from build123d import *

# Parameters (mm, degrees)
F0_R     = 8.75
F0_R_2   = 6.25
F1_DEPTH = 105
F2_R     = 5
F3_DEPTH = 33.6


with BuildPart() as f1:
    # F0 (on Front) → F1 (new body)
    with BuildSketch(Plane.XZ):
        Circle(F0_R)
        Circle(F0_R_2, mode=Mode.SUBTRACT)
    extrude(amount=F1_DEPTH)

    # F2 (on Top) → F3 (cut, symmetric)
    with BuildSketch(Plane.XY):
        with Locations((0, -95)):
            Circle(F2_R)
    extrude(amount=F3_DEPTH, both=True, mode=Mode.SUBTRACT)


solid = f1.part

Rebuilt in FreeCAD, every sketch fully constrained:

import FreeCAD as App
import Part
import Sketcher

doc = App.newDocument("Part")
body = doc.addObject("PartDesign::Body", "Body")

sketch1 = doc.addObject("Sketcher::SketchObject", "Sketch")
body.addObject(sketch1)
sketch1.AttachmentSupport = (doc.XZ_Plane, [""])
sketch1.MapMode = "FlatFace"
sketch1.addGeometry([
    Part.Circle(App.Vector(0, 0, 0), App.Vector(0, 0, 1), 9),
    Part.Circle(App.Vector(0, 0, 0), App.Vector(0, 0, 1), 6),
], False)
sketch1.addConstraint([
    Sketcher.Constraint("Coincident", 0, 3, -1, 1),
    Sketcher.Constraint("Coincident", 1, 3, -1, 1),
    Sketcher.Constraint("Diameter", 0, 17.5),
    Sketcher.Constraint("Diameter", 1, 12.5),
])
pad1 = doc.addObject("PartDesign::Pad", "Pad")
body.addObject(pad1)
pad1.Profile = sketch1
pad1.Length = 105

sketch2 = doc.addObject("Sketcher::SketchObject", "Sketch001")
body.addObject(sketch2)
sketch2.AttachmentSupport = (doc.XY_Plane, [""])
sketch2.MapMode = "FlatFace"
sketch2.addGeometry(Part.Circle(App.Vector(0, -95, 0), App.Vector(0, 0, 1), 5), False)
sketch2.addConstraint([
    Sketcher.Constraint("PointOnObject", 0, 3, -2),
    Sketcher.Constraint("Diameter", 0, 10.0),
    Sketcher.Constraint("DistanceY", 0, 3, -1, 1, 95.0),
])
pocket1 = doc.addObject("PartDesign::Pocket", "Pocket")
body.addObject(pocket1)
pocket1.Profile = sketch2
pocket1.Length = 67.2
pocket1.Midplane = True

doc.recompute()
